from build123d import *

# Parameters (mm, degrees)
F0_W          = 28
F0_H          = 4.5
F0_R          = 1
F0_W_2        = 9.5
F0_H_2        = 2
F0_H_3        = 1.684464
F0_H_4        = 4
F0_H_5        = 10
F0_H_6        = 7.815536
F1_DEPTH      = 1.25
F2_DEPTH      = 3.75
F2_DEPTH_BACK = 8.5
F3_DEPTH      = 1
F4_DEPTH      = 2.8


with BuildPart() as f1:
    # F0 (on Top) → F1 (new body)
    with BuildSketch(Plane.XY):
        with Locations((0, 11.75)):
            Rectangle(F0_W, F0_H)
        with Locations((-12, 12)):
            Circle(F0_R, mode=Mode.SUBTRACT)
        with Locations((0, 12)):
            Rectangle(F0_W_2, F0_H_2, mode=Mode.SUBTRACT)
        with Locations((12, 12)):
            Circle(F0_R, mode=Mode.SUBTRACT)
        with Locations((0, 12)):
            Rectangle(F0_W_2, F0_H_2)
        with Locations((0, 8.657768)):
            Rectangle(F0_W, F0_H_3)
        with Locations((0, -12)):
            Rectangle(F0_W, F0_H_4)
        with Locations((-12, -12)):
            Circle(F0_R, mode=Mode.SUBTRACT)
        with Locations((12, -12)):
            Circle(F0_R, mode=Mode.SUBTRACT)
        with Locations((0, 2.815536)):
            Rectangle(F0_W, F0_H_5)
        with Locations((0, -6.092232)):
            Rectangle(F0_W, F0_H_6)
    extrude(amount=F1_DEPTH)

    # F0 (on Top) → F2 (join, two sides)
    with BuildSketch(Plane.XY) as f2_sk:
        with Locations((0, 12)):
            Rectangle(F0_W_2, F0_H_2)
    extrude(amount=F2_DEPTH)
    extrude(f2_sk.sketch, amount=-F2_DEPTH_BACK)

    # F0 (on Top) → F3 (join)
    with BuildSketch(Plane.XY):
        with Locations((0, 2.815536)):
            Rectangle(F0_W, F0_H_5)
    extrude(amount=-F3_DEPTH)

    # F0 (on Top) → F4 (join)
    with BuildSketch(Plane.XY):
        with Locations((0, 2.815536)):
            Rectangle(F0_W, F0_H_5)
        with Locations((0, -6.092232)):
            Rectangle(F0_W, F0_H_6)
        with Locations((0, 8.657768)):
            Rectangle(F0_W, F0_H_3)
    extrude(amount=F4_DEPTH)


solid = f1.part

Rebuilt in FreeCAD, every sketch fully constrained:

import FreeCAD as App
import Part
import Sketcher
from FreeCAD import Vector
Q = App.Units.Quantity


def add_polygon(sketch, points):
    """Adds a closed chain of lines whose ends are joined by coincident constraints."""
    first, n = sketch.GeometryCount, len(points)
    for a, b in zip(points, points[1:] + points[:1]):
        sketch.addGeometry(Part.LineSegment(App.Vector(*a, 0), App.Vector(*b, 0)), False)
    for i in range(n):
        sketch.addConstraint(Sketcher.Constraint("Coincident", first + i, 2, first + (i + 1) % n, 1))

doc = App.newDocument("Part")
body = doc.addObject("PartDesign::Body", "Body")

sketch1 = doc.addObject("Sketcher::SketchObject", "Sketch")
body.addObject(sketch1)
sketch1.AttachmentSupport = (doc.XY_Plane, [""])
sketch1.MapMode = "FlatFace"
add_polygon(sketch1, [(-14, 14), (-14, -14), (14, -14), (14, 14)])
sketch1.addGeometry(Part.Circle(Vector(-12, 12, 0), Vector(0, 0, 1), 1), False)
sketch1.addGeometry(Part.Circle(Vector(12, 12, 0), Vector(0, 0, 1), 1), False)
sketch1.addGeometry(Part.Circle(Vector(12, -12, 0), Vector(0, 0, 1), 1), False)
sketch1.addGeometry(Part.Circle(Vector(-12, -12, 0), Vector(0, 0, 1), 1), False)
sketch1.addConstraint([
    Sketcher.Constraint("Vertical", 0),
    Sketcher.Constraint("Horizontal", 1),
    Sketcher.Constraint("Vertical", 2),
    Sketcher.Constraint("Horizontal", 3),
    Sketcher.Constraint("Equal", 4, 5),
    Sketcher.Constraint("Equal", 5, 6),
    Sketcher.Constraint("Equal", 6, 7),
    Sketcher.Constraint("Symmetric", 4, 3, 6, 3, -1, 1),
    Sketcher.Constraint("Symmetric", 5, 3, 7, 3, -1, 1),
    Sketcher.Constraint("Symmetric", 0, 2, 2, 2, -1, 1),
    Sketcher.Constraint("Symmetric", 4, 3, 5, 3, -2),
    Sketcher.Constraint("Equal", 3, 0),
    Sketcher.Constraint("Diameter", 4, Q("2 mm")),
    Sketcher.Constraint("DistanceX", 1, 1, 1, 2, Q("28 mm")),
    Sketcher.Constraint("DistanceX", 4, 3, -1, 1, Q("12 mm")),
    Sketcher.Constraint("DistanceY", -1, 1, 4, 3, Q("12 mm")),
])
pad1 = doc.addObject("PartDesign::Pad", "Pad")
body.addObject(pad1)
pad1.Profile = sketch1
pad1.Length = 1.25

sketch2 = doc.addObject("Sketcher::SketchObject", "Sketch001")
body.addObject(sketch2)
sketch2.AttachmentSupport = (doc.XY_Plane, [""])
sketch2.MapMode = "FlatFace"
add_polygon(sketch2, [(-4.8, 13), (-4.8, 11), (4.8, 11), (4.8, 13)])
sketch2.addConstraint([
    Sketcher.Constraint("Vertical", 0),
    Sketcher.Constraint("Horizontal", 1),
    Sketcher.Constraint("Vertical", 2),
    Sketcher.Constraint("Horizontal", 3),
    Sketcher.Constraint("DistanceY", 0, 2, 0, 1, Q("2 mm")),
    Sketcher.Constraint("DistanceX", 1, 1, 1, 2, Q("9.5 mm")),
    Sketcher.Constraint("DistanceY", -1, 1, 0, 2, Q("11 mm")),
    Sketcher.Constraint("DistanceX", 0, 2, -1, 1, Q("4.75 mm")),
])
pad2 = doc.addObject("PartDesign::Pad", "Pad001")
body.addObject(pad2)
pad2.Profile = sketch2
pad2.Type = "TwoLengths"
pad2.Length = 3.75
pad2.Length2 = 8.5

sketch3 = doc.addObject("Sketcher::SketchObject", "Sketch002")
body.addObject(sketch3)
sketch3.AttachmentSupport = (doc.XY_Plane, [""])
sketch3.MapMode = "FlatFace"
add_polygon(sketch3, [(-14, 8), (-14, -2), (14, -2), (14, 8)])
sketch3.addConstraint([
    Sketcher.Constraint("Vertical", 0),
    Sketcher.Constraint("Horizontal", 1),
    Sketcher.Constraint("Vertical", 2),
    Sketcher.Constraint("Horizontal", 3),
    Sketcher.Constraint("DistanceX", 1, 1, 1, 2, Q("28 mm")),
    Sketcher.Constraint("DistanceY", 0, 2, 0, 1, Q("10 mm")),
    Sketcher.Constraint("DistanceX", 0, 2, -1, 1, Q("14 mm")),
    Sketcher.Constraint("DistanceY", 0, 2, -1, 1, Q("2.184464 mm")),
])
pad3 = doc.addObject("PartDesign::Pad", "Pad002")
body.addObject(pad3)
pad3.Profile = sketch3
pad3.Length = 1
pad3.Reversed = True

sketch4 = doc.addObject("Sketcher::SketchObject", "Sketch003")
body.addObject(sketch4)
sketch4.AttachmentSupport = (doc.XY_Plane, [""])
sketch4.MapMode = "FlatFace"
add_polygon(sketch4, [(-14, -10), (14, -10), (14, 10), (-14, 10)])
sketch4.addConstraint([
    Sketcher.Constraint("Horizontal", 0),
    Sketcher.Constraint("Vertical", 1),
    Sketcher.Constraint("Horizontal", 2),
    Sketcher.Constraint("Vertical", 3),
    Sketcher.Constraint("DistanceX", 0, 1, 0, 2, Q("28 mm")),
    Sketcher.Constraint("DistanceY", 1, 1, 1, 2, Q("19.5 mm")),
    Sketcher.Constraint("DistanceX", -1, 1, 0, 2, Q("14 mm")),
    Sketcher.Constraint("DistanceY", 0, 2, -1, 1, Q("10 mm")),
])
pad4 = doc.addObject("PartDesign::Pad", "Pad003")
body.addObject(pad4)
pad4.Profile = sketch4
pad4.Length = 2.8

doc.recompute()
